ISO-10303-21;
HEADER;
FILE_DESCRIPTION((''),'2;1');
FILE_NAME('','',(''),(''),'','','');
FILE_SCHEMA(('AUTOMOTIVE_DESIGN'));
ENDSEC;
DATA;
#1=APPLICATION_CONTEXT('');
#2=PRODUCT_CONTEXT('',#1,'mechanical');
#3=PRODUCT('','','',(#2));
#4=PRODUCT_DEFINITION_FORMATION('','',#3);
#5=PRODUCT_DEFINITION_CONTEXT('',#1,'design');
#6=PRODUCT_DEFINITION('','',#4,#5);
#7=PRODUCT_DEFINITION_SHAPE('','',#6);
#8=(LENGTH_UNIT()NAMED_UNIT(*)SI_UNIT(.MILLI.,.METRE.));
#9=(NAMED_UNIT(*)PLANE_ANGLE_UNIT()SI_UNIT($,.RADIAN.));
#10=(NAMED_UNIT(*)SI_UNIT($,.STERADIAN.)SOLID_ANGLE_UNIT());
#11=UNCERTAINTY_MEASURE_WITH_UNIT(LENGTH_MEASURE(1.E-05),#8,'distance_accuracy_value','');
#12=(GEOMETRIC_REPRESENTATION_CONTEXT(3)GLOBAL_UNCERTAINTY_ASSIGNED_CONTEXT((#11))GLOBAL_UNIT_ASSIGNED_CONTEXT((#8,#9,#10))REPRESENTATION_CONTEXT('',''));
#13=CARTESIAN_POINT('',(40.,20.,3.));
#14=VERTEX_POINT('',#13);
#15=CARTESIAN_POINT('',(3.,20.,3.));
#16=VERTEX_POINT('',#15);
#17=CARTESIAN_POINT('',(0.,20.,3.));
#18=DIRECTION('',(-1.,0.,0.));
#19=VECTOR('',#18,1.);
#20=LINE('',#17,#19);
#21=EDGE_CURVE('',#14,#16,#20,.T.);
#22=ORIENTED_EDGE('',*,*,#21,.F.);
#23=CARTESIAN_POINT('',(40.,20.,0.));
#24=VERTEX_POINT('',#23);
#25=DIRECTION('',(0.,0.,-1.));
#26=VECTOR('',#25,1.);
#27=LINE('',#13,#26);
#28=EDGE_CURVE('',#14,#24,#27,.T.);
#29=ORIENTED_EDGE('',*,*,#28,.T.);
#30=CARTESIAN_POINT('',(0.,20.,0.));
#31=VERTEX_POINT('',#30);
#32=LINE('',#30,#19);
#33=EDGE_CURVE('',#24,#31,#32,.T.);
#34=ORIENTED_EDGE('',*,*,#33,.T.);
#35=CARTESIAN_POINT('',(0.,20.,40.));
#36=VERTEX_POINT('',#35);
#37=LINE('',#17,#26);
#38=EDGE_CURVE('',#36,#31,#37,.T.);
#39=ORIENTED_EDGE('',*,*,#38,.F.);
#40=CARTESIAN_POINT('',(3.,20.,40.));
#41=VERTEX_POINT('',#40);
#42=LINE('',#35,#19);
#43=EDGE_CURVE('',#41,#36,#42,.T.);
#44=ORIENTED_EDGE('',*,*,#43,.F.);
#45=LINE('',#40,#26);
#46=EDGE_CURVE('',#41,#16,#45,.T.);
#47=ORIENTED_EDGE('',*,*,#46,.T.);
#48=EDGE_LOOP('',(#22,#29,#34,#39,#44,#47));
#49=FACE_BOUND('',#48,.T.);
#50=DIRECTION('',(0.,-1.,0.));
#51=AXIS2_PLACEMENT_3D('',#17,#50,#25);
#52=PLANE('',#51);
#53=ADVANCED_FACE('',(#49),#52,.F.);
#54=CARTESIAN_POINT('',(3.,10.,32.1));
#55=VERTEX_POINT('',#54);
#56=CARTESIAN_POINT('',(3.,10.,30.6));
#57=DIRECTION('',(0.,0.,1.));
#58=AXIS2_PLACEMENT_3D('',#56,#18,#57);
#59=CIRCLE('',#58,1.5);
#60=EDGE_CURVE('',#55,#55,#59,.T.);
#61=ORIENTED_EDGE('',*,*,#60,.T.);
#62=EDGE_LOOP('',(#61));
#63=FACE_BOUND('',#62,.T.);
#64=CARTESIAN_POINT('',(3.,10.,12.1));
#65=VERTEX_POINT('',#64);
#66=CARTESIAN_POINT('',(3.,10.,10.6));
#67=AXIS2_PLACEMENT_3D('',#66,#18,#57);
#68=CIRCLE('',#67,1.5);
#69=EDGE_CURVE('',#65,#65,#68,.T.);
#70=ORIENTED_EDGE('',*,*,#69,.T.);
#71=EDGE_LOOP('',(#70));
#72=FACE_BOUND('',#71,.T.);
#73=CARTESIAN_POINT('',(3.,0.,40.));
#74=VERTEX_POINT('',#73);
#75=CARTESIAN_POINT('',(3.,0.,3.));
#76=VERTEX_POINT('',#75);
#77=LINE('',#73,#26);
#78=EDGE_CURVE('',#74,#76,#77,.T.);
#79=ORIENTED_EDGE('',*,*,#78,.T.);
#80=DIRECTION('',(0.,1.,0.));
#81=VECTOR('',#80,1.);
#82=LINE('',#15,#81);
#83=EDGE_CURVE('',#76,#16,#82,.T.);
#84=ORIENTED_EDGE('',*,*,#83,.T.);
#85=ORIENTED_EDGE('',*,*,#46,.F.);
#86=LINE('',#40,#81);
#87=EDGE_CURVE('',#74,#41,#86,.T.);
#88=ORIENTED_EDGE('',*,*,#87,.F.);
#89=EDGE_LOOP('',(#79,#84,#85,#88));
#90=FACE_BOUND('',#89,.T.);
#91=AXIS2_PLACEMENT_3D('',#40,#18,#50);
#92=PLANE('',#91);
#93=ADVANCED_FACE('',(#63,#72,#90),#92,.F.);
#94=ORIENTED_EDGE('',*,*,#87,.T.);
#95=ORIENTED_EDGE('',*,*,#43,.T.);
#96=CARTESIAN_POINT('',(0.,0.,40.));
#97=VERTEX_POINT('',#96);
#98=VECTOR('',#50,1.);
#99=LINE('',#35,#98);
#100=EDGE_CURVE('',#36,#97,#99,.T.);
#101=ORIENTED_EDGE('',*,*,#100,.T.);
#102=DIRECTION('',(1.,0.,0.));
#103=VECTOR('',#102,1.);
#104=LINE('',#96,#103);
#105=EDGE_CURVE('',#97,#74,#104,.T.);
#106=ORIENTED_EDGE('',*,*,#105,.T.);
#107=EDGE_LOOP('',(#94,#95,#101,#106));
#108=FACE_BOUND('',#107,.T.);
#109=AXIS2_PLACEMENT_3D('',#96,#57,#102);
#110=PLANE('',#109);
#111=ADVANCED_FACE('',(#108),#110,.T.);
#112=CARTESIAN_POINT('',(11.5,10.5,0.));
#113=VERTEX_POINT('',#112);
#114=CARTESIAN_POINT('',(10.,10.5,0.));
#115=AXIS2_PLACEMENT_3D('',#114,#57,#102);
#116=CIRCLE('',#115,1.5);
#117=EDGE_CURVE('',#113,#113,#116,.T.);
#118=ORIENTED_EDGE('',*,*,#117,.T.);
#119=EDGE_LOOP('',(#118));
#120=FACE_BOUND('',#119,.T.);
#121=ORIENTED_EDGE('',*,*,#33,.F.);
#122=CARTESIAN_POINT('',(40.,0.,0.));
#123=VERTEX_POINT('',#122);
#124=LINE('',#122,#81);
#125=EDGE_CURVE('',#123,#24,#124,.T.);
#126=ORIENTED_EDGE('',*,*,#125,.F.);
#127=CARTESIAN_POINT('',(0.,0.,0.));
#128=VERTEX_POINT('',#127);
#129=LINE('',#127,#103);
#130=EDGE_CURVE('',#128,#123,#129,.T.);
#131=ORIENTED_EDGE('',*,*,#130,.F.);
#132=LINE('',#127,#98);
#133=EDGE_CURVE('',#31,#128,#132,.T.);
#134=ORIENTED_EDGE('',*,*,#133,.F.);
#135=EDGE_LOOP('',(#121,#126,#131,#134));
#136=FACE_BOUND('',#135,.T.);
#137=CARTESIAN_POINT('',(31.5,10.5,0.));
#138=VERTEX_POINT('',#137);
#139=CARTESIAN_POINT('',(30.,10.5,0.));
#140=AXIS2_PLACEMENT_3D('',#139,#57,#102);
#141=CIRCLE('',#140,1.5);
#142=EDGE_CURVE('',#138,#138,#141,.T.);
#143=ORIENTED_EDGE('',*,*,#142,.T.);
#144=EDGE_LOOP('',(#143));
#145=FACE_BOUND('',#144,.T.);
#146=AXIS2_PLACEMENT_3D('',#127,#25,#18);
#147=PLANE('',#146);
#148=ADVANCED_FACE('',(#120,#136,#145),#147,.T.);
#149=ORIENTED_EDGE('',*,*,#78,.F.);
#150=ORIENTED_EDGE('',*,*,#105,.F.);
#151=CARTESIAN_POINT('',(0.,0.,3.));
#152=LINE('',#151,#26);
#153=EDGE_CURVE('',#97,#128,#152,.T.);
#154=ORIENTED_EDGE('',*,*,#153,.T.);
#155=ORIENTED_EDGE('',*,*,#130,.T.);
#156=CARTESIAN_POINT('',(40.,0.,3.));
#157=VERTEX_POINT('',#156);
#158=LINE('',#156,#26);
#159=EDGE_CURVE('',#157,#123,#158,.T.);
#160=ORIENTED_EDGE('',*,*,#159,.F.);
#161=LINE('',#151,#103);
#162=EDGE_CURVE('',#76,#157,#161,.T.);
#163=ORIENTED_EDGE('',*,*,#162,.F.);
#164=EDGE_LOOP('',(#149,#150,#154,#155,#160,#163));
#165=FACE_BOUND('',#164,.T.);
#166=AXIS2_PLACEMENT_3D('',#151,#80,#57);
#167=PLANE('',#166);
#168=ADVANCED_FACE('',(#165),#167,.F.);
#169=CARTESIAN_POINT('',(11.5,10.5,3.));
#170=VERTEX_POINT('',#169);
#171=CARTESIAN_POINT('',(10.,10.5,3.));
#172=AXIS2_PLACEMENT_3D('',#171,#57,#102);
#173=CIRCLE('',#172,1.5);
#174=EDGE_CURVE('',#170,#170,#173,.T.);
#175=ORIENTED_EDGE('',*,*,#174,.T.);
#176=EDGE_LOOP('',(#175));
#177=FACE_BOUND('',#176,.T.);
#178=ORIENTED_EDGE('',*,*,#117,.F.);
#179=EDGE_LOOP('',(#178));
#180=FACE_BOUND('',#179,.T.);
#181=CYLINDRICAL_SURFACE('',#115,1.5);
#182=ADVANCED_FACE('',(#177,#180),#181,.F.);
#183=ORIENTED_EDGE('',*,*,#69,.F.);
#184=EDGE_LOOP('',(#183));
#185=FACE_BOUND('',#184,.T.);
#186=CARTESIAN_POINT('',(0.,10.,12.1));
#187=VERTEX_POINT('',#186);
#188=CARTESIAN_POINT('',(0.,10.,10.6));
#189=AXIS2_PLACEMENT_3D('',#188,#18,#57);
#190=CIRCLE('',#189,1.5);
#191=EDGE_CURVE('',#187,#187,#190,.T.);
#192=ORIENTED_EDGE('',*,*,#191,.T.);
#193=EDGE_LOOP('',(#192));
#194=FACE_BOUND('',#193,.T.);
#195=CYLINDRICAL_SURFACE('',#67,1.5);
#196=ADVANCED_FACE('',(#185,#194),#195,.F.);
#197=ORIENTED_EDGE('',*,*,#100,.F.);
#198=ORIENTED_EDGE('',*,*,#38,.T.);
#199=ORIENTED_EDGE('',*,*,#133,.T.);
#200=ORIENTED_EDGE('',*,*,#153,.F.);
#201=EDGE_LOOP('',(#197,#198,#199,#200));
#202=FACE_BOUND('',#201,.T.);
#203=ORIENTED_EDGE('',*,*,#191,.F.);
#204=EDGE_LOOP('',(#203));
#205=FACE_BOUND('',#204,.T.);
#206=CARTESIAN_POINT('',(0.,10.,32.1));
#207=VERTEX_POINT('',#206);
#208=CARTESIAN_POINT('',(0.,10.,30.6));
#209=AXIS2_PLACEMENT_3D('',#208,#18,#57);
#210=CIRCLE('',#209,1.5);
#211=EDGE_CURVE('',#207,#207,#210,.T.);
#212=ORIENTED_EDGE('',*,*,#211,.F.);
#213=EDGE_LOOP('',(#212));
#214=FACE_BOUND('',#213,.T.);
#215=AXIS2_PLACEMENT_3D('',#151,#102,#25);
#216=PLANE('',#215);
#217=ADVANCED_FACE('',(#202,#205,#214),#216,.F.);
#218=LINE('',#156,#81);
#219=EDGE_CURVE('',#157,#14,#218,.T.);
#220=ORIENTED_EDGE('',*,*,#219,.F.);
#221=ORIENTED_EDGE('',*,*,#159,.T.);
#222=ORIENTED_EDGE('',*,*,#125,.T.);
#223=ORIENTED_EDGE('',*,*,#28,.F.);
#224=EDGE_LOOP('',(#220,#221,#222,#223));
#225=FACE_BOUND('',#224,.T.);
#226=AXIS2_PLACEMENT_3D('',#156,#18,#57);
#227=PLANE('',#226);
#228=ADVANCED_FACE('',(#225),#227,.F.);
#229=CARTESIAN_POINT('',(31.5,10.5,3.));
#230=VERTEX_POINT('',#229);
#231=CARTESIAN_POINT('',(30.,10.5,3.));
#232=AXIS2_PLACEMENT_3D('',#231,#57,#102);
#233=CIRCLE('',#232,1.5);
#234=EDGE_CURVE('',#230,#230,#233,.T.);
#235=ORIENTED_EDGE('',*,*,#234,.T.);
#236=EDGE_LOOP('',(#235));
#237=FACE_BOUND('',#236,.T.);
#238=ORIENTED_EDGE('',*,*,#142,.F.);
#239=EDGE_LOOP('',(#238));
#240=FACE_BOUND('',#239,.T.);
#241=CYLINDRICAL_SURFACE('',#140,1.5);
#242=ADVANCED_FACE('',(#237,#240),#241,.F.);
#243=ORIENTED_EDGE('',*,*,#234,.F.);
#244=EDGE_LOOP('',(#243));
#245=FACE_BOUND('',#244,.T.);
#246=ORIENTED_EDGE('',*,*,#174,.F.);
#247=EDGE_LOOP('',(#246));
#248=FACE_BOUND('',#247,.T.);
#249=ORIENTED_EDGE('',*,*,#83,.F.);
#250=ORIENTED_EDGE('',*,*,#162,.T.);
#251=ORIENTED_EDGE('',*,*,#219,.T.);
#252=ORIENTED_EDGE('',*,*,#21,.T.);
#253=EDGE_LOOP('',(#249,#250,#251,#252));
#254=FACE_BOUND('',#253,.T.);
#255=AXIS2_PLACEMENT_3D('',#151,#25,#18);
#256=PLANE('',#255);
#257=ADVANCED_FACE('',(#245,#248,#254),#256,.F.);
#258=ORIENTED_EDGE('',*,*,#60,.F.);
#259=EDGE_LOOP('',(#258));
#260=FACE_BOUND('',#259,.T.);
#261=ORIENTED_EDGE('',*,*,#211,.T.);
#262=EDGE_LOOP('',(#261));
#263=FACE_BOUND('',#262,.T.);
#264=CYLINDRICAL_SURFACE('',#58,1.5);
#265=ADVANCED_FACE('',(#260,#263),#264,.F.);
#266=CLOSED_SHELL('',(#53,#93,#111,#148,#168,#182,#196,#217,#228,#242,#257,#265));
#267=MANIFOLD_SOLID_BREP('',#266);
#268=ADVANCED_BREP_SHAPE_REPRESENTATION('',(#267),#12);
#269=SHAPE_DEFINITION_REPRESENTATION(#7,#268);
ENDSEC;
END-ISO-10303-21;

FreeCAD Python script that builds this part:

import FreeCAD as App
import Part
import Sketcher
Q = App.Units.Quantity

doc = App.newDocument("Part")
body = doc.addObject("PartDesign::Body", "Body")

# Sketch on XY plane
sketch1 = body.newObject("Sketcher::SketchObject", "Sketch")
sketch1.AttachmentSupport = (doc.getObject("XY_Plane"), [""])
sketch1.MapMode = "FlatFace"
sketch1.addGeometry([
    Part.LineSegment(App.Vector(0, 20, 0), App.Vector(0, 0, 0)),
    Part.LineSegment(App.Vector(0, 0, 0), App.Vector(40, 0, 0)),
    Part.LineSegment(App.Vector(40, 0, 0), App.Vector(40, 20, 0)),
    Part.LineSegment(App.Vector(40, 20, 0), App.Vector(0, 20, 0)),
], False)
sketch1.addConstraint([
    Sketcher.Constraint("Coincident", 0, 2, 1, 1),
    Sketcher.Constraint("Coincident", 1, 2, 2, 1),
    Sketcher.Constraint("Coincident", 2, 2, 3, 1),
    Sketcher.Constraint("Coincident", 3, 2, 0, 1),
    Sketcher.Constraint("Vertical", 0),
    Sketcher.Constraint("Horizontal", 1),
    Sketcher.Constraint("Vertical", 2),
    Sketcher.Constraint("Horizontal", 3),
    Sketcher.Constraint("Coincident", 0, 2, -1, 1),
    Sketcher.Constraint("DistanceX", 1, 1, 1, 2, Q("40 mm")),
    Sketcher.Constraint("DistanceY", 0, 2, 0, 1, Q("20 mm")),
])
pad1 = body.newObject("PartDesign::Pad", "Pad")
pad1.Profile = sketch1
pad1.Length = 3

# Sketch on XY plane
sketch2 = body.newObject("Sketcher::SketchObject", "Sketch001")
sketch2.AttachmentSupport = (doc.getObject("XY_Plane"), [""])
sketch2.MapMode = "FlatFace"
sketch2.AttachmentOffset = App.Placement(App.Vector(0, 0, 3), App.Rotation())
sketch2.addGeometry([
    Part.Circle(App.Vector(10, 10.5, 0), App.Vector(0, 0, 1), 1.5),
    Part.Circle(App.Vector(30, 10.5, 0), App.Vector(0, 0, 1), 1.5),
], False)
sketch2.addConstraint([
    Sketcher.Constraint("Equal", 0, 1),
    Sketcher.Constraint("Horizontal", 0, 3, 1, 3),
    Sketcher.Constraint("Diameter", 0, Q("3 mm")),
    Sketcher.Constraint("DistanceX", -1, 1, 0, 3, Q("10 mm")),
    Sketcher.Constraint("DistanceX", -1, 1, 1, 3, Q("30 mm")),
    Sketcher.Constraint("DistanceY", -1, 1, 0, 3, Q("10.5 mm")),
])
pocket1 = body.newObject("PartDesign::Pocket", "Pocket")
pocket1.Profile = sketch2
pocket1.Length = 3

# Sketch on XY plane
sketch3 = body.newObject("Sketcher::SketchObject", "Sketch002")
sketch3.AttachmentSupport = (doc.getObject("XY_Plane"), [""])
sketch3.MapMode = "FlatFace"
sketch3.AttachmentOffset = App.Placement(App.Vector(0, 0, 3), App.Rotation())
sketch3.addGeometry([
    Part.LineSegment(App.Vector(0, 20, 0), App.Vector(0, 0, 0)),
    Part.LineSegment(App.Vector(0, 0, 0), App.Vector(3, 0, 0)),
    Part.LineSegment(App.Vector(3, 0, 0), App.Vector(3, 20, 0)),
    Part.LineSegment(App.Vector(3, 20, 0), App.Vector(0, 20, 0)),
], False)
sketch3.addConstraint([
    Sketcher.Constraint("Coincident", 0, 2, 1, 1),
    Sketcher.Constraint("Coincident", 1, 2, 2, 1),
    Sketcher.Constraint("Coincident", 2, 2, 3, 1),
    Sketcher.Constraint("Coincident", 3, 2, 0, 1),
    Sketcher.Constraint("Vertical", 0),
    Sketcher.Constraint("Horizontal", 1),
    Sketcher.Constraint("Vertical", 2),
    Sketcher.Constraint("Horizontal", 3),
    Sketcher.Constraint("Coincident", 0, 2, -1, 1),
    Sketcher.Constraint("DistanceX", 1, 1, 1, 2, Q("3 mm")),
    Sketcher.Constraint("DistanceY", 0, 2, 0, 1, Q("20 mm")),
])
pad2 = body.newObject("PartDesign::Pad", "Pad001")
pad2.Profile = sketch3
pad2.Length = 37

# Sketch on YZ plane
sketch4 = body.newObject("Sketcher::SketchObject", "Sketch003")
sketch4.AttachmentSupport = (doc.getObject("YZ_Plane"), [""])
sketch4.MapMode = "FlatFace"
sketch4.addGeometry([
    Part.Circle(App.Vector(10, 10.6, 0), App.Vector(0, 0, 1), 1.5),
    Part.Circle(App.Vector(10, 30.6, 0), App.Vector(0, 0, 1), 1.5),
], False)
sketch4.addConstraint([
    Sketcher.Constraint("Equal", 0, 1),
    Sketcher.Constraint("Vertical", 0, 3, 1, 3),
    Sketcher.Constraint("Diameter", 0, Q("3 mm")),
    Sketcher.Constraint("DistanceX", -1, 1, 0, 3, Q("10 mm")),
    Sketcher.Constraint("DistanceY", 0, 3, 1, 3, Q("20 mm")),
    Sketcher.Constraint("DistanceY", -1, 1, 0, 3, Q("10.6 mm")),
])
pocket2 = body.newObject("PartDesign::Pocket", "Pocket001")
pocket2.Profile = sketch4
pocket2.Length = 3
pocket2.Reversed = True

doc.recompute()
